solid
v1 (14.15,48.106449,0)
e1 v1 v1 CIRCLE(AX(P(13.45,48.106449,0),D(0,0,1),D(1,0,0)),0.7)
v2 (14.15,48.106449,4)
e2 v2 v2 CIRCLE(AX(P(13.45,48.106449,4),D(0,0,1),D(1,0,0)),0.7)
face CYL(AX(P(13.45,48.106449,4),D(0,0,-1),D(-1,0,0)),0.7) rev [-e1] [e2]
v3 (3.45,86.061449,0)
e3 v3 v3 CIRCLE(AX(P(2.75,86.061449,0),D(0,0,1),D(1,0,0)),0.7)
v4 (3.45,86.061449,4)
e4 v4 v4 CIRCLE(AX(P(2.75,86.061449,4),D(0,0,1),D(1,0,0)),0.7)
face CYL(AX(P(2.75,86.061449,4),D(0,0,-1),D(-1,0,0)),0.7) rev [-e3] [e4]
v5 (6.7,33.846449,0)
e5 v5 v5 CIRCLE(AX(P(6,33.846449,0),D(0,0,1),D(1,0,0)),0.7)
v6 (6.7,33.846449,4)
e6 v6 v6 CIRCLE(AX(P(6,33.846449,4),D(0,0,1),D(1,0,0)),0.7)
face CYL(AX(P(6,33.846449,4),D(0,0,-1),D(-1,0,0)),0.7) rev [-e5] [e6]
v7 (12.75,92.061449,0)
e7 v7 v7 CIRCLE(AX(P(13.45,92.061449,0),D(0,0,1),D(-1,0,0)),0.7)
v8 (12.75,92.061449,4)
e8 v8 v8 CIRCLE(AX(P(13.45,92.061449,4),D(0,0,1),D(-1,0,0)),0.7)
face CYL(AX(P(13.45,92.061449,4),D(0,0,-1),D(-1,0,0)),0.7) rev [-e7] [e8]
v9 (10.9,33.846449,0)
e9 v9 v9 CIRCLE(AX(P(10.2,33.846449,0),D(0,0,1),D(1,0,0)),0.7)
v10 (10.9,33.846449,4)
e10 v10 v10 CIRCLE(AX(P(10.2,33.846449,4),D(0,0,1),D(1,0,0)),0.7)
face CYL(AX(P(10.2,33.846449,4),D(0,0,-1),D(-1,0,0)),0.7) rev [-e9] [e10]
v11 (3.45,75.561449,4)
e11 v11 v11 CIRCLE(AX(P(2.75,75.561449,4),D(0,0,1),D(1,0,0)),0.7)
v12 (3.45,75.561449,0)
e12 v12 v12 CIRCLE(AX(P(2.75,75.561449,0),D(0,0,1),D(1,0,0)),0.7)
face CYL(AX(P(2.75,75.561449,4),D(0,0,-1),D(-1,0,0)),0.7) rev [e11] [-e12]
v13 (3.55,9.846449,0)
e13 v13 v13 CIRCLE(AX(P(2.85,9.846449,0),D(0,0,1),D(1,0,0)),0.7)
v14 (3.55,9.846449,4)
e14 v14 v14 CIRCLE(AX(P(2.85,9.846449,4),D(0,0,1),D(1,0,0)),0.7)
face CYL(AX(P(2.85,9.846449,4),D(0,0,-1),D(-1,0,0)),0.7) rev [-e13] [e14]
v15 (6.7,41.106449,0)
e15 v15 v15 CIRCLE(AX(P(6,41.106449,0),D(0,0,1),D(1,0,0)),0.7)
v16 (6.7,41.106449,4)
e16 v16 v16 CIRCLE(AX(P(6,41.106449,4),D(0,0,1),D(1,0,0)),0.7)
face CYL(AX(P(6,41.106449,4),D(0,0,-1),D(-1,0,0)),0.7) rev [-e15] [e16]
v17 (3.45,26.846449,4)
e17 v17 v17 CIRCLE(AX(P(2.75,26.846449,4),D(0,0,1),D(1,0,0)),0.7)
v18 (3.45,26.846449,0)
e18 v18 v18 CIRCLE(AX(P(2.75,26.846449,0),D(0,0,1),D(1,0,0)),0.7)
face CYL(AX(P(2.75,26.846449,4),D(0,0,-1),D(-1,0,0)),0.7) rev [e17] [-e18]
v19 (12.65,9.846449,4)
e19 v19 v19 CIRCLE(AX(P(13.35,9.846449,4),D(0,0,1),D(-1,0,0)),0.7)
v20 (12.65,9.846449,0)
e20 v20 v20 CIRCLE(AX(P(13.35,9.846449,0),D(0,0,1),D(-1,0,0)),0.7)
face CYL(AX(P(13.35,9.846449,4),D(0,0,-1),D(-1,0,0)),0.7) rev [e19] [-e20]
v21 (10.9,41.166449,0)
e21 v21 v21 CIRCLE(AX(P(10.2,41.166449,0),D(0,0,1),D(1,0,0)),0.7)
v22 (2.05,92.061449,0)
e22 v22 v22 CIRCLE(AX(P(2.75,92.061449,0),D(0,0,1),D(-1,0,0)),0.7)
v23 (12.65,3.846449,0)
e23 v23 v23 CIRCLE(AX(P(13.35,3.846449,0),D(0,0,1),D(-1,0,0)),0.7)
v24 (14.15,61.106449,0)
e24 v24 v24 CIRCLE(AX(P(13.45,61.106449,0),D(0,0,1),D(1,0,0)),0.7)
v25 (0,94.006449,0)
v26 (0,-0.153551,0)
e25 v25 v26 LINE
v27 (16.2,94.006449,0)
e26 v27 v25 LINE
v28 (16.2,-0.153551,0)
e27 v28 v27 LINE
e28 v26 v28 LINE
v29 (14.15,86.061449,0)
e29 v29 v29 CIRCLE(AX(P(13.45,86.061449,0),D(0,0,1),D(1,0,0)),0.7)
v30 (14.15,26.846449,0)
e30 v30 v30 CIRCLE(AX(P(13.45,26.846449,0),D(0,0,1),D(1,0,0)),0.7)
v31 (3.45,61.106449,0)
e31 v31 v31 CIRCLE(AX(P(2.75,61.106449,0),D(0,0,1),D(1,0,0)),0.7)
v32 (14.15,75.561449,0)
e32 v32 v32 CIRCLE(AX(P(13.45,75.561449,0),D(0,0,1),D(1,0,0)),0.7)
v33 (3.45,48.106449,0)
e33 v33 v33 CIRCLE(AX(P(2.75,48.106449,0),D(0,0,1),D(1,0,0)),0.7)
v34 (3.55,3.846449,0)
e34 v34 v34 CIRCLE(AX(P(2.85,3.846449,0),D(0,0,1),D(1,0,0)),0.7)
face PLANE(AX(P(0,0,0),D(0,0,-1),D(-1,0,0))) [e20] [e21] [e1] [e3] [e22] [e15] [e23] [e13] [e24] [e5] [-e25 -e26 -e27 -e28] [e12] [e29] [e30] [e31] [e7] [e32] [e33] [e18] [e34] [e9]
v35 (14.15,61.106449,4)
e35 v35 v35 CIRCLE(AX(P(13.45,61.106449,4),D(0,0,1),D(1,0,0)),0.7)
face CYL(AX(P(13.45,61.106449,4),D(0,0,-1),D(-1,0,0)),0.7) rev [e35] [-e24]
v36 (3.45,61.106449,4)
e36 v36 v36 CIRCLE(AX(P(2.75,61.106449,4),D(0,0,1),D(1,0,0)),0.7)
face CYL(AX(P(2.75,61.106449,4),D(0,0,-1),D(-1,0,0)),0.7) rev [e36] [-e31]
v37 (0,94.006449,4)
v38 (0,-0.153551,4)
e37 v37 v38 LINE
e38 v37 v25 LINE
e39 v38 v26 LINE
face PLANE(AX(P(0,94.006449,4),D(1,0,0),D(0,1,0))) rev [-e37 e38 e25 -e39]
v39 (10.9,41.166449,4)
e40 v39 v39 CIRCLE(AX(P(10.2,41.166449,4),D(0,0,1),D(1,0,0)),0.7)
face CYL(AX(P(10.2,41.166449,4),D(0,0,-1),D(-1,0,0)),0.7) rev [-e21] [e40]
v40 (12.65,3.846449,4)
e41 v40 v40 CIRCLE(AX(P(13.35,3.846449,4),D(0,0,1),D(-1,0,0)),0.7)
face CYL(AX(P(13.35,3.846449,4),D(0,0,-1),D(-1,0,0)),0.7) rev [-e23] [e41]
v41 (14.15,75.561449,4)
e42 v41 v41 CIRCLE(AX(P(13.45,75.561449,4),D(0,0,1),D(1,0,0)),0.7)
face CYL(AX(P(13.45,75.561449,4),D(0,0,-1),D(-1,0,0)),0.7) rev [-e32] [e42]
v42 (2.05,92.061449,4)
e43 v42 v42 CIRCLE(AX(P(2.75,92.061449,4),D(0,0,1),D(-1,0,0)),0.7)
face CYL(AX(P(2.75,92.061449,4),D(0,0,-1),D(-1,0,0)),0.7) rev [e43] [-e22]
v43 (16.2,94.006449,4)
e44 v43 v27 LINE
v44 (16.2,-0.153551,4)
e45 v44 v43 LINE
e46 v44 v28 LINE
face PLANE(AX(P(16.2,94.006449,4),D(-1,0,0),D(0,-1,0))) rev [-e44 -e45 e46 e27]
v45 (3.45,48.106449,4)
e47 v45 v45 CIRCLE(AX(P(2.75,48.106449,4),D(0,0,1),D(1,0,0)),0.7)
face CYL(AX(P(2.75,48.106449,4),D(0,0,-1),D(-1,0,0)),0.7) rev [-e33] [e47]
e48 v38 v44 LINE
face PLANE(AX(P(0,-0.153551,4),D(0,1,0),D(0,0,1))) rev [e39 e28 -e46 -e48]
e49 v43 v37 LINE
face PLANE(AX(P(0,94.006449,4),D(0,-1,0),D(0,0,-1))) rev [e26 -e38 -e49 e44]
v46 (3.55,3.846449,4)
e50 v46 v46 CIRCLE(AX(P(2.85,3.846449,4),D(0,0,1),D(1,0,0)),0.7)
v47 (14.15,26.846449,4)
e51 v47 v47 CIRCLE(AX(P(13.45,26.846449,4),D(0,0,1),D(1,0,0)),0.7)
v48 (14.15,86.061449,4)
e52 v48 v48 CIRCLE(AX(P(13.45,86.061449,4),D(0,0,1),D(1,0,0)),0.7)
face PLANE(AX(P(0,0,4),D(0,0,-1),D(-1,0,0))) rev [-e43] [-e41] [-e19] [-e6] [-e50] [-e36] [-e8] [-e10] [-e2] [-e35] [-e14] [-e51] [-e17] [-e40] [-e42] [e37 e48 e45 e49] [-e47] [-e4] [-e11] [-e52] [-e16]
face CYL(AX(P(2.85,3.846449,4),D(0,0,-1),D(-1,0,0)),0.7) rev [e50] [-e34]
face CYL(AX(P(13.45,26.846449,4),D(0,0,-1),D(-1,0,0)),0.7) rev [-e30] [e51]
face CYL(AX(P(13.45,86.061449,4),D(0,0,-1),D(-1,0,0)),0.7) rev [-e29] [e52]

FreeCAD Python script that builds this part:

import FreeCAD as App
import Part
import Sketcher
from FreeCAD import Vector
Q = App.Units.Quantity

doc = App.newDocument("Part")
body = doc.addObject("PartDesign::Body", "Body")

sketch1 = body.newObject("Sketcher::SketchObject", "Sketch")
sketch1.AttachmentSupport = (doc.getObject("XY_Plane"), [""])
sketch1.MapMode = "FlatFace"
sketch1.addGeometry([
    Part.LineSegment(Vector(0, 94, 0), Vector(0, -0.2, 0)),
    Part.LineSegment(Vector(0, -0.2, 0), Vector(16.2, -0.2, 0)),
    Part.LineSegment(Vector(16.2, -0.2, 0), Vector(16.2, 94, 0)),
    Part.LineSegment(Vector(16.2, 94, 0), Vector(0, 94, 0)),
    Part.Circle(Vector(2.9, 3.8, 0), Vector(0, 0, 1), 0.7),
    Part.Circle(Vector(2.9, 9.8, 0), Vector(0, 0, 1), 0.7),
    Part.Circle(Vector(2.8, 26.8, 0), Vector(0, 0, 1), 0.7),
    Part.Circle(Vector(6, 33.8, 0), Vector(0, 0, 1), 0.7),
    Part.Circle(Vector(6, 41.1, 0), Vector(0, 0, 1), 0.7),
    Part.Circle(Vector(13.3, 3.8, 0), Vector(0, 0, 1), 0.7),
    Part.Circle(Vector(13.3, 9.8, 0), Vector(0, 0, 1), 0.7),
    Part.Circle(Vector(10.2, 33.8, 0), Vector(0, 0, 1), 0.7),
    Part.Circle(Vector(10.2, 41.2, 0), Vector(0, 0, 1), 0.7),
    Part.Circle(Vector(13.4, 26.8, 0), Vector(0, 0, 1), 0.7),
    Part.Circle(Vector(2.8, 48.1, 0), Vector(0, 0, 1), 0.7),
    Part.Circle(Vector(2.8, 61.1, 0), Vector(0, 0, 1), 0.7),
    Part.Circle(Vector(2.8, 75.6, 0), Vector(0, 0, 1), 0.7),
    Part.Circle(Vector(2.8, 86.1, 0), Vector(0, 0, 1), 0.7),
    Part.Circle(Vector(2.8, 92.1, 0), Vector(0, 0, 1), 0.7),
    Part.Circle(Vector(13.4, 48.1, 0), Vector(0, 0, 1), 0.7),
    Part.Circle(Vector(13.4, 61.1, 0), Vector(0, 0, 1), 0.7),
    Part.Circle(Vector(13.4, 75.6, 0), Vector(0, 0, 1), 0.7),
    Part.Circle(Vector(13.4, 86.1, 0), Vector(0, 0, 1), 0.7),
    Part.Circle(Vector(13.4, 92.1, 0), Vector(0, 0, 1), 0.7),
], False)
sketch1.addConstraint([
    Sketcher.Constraint("Coincident", 0, 2, 1, 1),
    Sketcher.Constraint("Coincident", 1, 2, 2, 1),
    Sketcher.Constraint("Coincident", 2, 2, 3, 1),
    Sketcher.Constraint("Coincident", 3, 2, 0, 1),
    Sketcher.Constraint("Vertical", 0),
    Sketcher.Constraint("Horizontal", 1),
    Sketcher.Constraint("Vertical", 2),
    Sketcher.Constraint("Horizontal", 3),
    Sketcher.Constraint("Equal", 4, 5),
    Sketcher.Constraint("Equal", 5, 6),
    Sketcher.Constraint("Equal", 6, 7),
    Sketcher.Constraint("Equal", 7, 8),
    Sketcher.Constraint("Equal", 8, 9),
    Sketcher.Constraint("Equal", 9, 10),
    Sketcher.Constraint("Equal", 10, 11),
    Sketcher.Constraint("Equal", 11, 12),
    Sketcher.Constraint("Equal", 12, 13),
    Sketcher.Constraint("Equal", 13, 14),
    Sketcher.Constraint("Equal", 14, 15),
    Sketcher.Constraint("Equal", 15, 16),
    Sketcher.Constraint("Equal", 16, 17),
    Sketcher.Constraint("Equal", 17, 18),
    Sketcher.Constraint("Equal", 18, 19),
    Sketcher.Constraint("Equal", 19, 20),
    Sketcher.Constraint("Equal", 20, 21),
    Sketcher.Constraint("Equal", 21, 22),
    Sketcher.Constraint("Equal", 22, 23),
    Sketcher.Constraint("PointOnObject", 0, 2, -2),
    Sketcher.Constraint("Horizontal", 4, 3, 9, 3),
    Sketcher.Constraint("Horizontal", 5, 3, 10, 3),
    Sketcher.Constraint("Horizontal", 7, 3, 11, 3),
    Sketcher.Constraint("Horizontal", 6, 3, 13, 3),
    Sketcher.Constraint("Horizontal", 14, 3, 19, 3),
    Sketcher.Constraint("Horizontal", 15, 3, 20, 3),
    Sketcher.Constraint("Horizontal", 16, 3, 21, 3),
    Sketcher.Constraint("Horizontal", 17, 3, 22, 3),
    Sketcher.Constraint("Horizontal", 18, 3, 23, 3),
    Sketcher.Constraint("Vertical", 4, 3, 5, 3),
    Sketcher.Constraint("Vertical", 7, 3, 8, 3),
    Sketcher.Constraint("Vertical", 9, 3, 10, 3),
    Sketcher.Constraint("Vertical", 11, 3, 12, 3),
    Sketcher.Constraint("Vertical", 6, 3, 14, 3),
    Sketcher.Constraint("Vertical", 14, 3, 15, 3),
    Sketcher.Constraint("Vertical", 15, 3, 16, 3),
    Sketcher.Constraint("Vertical", 16, 3, 17, 3),
    Sketcher.Constraint("Vertical", 17, 3, 18, 3),
    Sketcher.Constraint("Vertical", 13, 3, 19, 3),
    Sketcher.Constraint("Vertical", 19, 3, 20, 3),
    Sketcher.Constraint("Vertical", 20, 3, 21, 3),
    Sketcher.Constraint("Vertical", 21, 3, 22, 3),
    Sketcher.Constraint("Vertical", 22, 3, 23, 3),
    Sketcher.Constraint("Diameter", 4, Q("1.4 mm")),
    Sketcher.Constraint("DistanceX", 1, 1, 1, 2, Q("16.2 mm")),
    Sketcher.Constraint("DistanceX", -1, 1, 7, 3, Q("6 mm")),
    Sketcher.Constraint("DistanceY", 4, 3, 5, 3, Q("6 mm")),
    Sketcher.Constraint("DistanceY", 5, 3, 6, 3, Q("17 mm")),
    Sketcher.Constraint("DistanceY", 6, 3, 7, 3, Q("7 mm")),
    Sketcher.Constraint("DistanceY", 8, 3, 14, 3, Q("7 mm")),
    Sketcher.Constraint("DistanceY", 14, 3, 15, 3, Q("13 mm")),
    Sketcher.Constraint("DistanceY", 17, 3, 18, 3, Q("6 mm")),
    Sketcher.Constraint("DistanceY", 0, 2, 4, 3, Q("4 mm")),
    Sketcher.Constraint("DistanceY", 0, 2, 0, 1, Q("94.16 mm")),
    Sketcher.Constraint("DistanceX", -1, 1, 11, 3, Q("10.2 mm")),
    Sketcher.Constraint("DistanceX", 6, 3, 5, 3, Q("0.1 mm")),
    Sketcher.Constraint("DistanceX", 4, 3, 9, 3, Q("10.5 mm")),
    Sketcher.Constraint("DistanceX", 6, 3, 13, 3, Q("10.7 mm")),
    Sketcher.Constraint("DistanceY", 16, 3, 17, 3, Q("10.5 mm")),
    Sketcher.Constraint("DistanceX", -1, 1, 4, 3, Q("2.85 mm")),
    Sketcher.Constraint("DistanceY", 7, 3, 8, 3, Q("7.26 mm")),
    Sketcher.Constraint("DistanceY", 8, 3, 12, 3, Q("0.06 mm")),
    Sketcher.Constraint("DistanceY", 15, 3, 16, 3, Q("14.455 mm")),
    Sketcher.Constraint("DistanceY", -1, 1, 4, 3, Q("3.846449 mm")),
])
pad1 = body.newObject("PartDesign::Pad", "Pad")
pad1.Profile = sketch1
pad1.Length = 4

doc.recompute()
